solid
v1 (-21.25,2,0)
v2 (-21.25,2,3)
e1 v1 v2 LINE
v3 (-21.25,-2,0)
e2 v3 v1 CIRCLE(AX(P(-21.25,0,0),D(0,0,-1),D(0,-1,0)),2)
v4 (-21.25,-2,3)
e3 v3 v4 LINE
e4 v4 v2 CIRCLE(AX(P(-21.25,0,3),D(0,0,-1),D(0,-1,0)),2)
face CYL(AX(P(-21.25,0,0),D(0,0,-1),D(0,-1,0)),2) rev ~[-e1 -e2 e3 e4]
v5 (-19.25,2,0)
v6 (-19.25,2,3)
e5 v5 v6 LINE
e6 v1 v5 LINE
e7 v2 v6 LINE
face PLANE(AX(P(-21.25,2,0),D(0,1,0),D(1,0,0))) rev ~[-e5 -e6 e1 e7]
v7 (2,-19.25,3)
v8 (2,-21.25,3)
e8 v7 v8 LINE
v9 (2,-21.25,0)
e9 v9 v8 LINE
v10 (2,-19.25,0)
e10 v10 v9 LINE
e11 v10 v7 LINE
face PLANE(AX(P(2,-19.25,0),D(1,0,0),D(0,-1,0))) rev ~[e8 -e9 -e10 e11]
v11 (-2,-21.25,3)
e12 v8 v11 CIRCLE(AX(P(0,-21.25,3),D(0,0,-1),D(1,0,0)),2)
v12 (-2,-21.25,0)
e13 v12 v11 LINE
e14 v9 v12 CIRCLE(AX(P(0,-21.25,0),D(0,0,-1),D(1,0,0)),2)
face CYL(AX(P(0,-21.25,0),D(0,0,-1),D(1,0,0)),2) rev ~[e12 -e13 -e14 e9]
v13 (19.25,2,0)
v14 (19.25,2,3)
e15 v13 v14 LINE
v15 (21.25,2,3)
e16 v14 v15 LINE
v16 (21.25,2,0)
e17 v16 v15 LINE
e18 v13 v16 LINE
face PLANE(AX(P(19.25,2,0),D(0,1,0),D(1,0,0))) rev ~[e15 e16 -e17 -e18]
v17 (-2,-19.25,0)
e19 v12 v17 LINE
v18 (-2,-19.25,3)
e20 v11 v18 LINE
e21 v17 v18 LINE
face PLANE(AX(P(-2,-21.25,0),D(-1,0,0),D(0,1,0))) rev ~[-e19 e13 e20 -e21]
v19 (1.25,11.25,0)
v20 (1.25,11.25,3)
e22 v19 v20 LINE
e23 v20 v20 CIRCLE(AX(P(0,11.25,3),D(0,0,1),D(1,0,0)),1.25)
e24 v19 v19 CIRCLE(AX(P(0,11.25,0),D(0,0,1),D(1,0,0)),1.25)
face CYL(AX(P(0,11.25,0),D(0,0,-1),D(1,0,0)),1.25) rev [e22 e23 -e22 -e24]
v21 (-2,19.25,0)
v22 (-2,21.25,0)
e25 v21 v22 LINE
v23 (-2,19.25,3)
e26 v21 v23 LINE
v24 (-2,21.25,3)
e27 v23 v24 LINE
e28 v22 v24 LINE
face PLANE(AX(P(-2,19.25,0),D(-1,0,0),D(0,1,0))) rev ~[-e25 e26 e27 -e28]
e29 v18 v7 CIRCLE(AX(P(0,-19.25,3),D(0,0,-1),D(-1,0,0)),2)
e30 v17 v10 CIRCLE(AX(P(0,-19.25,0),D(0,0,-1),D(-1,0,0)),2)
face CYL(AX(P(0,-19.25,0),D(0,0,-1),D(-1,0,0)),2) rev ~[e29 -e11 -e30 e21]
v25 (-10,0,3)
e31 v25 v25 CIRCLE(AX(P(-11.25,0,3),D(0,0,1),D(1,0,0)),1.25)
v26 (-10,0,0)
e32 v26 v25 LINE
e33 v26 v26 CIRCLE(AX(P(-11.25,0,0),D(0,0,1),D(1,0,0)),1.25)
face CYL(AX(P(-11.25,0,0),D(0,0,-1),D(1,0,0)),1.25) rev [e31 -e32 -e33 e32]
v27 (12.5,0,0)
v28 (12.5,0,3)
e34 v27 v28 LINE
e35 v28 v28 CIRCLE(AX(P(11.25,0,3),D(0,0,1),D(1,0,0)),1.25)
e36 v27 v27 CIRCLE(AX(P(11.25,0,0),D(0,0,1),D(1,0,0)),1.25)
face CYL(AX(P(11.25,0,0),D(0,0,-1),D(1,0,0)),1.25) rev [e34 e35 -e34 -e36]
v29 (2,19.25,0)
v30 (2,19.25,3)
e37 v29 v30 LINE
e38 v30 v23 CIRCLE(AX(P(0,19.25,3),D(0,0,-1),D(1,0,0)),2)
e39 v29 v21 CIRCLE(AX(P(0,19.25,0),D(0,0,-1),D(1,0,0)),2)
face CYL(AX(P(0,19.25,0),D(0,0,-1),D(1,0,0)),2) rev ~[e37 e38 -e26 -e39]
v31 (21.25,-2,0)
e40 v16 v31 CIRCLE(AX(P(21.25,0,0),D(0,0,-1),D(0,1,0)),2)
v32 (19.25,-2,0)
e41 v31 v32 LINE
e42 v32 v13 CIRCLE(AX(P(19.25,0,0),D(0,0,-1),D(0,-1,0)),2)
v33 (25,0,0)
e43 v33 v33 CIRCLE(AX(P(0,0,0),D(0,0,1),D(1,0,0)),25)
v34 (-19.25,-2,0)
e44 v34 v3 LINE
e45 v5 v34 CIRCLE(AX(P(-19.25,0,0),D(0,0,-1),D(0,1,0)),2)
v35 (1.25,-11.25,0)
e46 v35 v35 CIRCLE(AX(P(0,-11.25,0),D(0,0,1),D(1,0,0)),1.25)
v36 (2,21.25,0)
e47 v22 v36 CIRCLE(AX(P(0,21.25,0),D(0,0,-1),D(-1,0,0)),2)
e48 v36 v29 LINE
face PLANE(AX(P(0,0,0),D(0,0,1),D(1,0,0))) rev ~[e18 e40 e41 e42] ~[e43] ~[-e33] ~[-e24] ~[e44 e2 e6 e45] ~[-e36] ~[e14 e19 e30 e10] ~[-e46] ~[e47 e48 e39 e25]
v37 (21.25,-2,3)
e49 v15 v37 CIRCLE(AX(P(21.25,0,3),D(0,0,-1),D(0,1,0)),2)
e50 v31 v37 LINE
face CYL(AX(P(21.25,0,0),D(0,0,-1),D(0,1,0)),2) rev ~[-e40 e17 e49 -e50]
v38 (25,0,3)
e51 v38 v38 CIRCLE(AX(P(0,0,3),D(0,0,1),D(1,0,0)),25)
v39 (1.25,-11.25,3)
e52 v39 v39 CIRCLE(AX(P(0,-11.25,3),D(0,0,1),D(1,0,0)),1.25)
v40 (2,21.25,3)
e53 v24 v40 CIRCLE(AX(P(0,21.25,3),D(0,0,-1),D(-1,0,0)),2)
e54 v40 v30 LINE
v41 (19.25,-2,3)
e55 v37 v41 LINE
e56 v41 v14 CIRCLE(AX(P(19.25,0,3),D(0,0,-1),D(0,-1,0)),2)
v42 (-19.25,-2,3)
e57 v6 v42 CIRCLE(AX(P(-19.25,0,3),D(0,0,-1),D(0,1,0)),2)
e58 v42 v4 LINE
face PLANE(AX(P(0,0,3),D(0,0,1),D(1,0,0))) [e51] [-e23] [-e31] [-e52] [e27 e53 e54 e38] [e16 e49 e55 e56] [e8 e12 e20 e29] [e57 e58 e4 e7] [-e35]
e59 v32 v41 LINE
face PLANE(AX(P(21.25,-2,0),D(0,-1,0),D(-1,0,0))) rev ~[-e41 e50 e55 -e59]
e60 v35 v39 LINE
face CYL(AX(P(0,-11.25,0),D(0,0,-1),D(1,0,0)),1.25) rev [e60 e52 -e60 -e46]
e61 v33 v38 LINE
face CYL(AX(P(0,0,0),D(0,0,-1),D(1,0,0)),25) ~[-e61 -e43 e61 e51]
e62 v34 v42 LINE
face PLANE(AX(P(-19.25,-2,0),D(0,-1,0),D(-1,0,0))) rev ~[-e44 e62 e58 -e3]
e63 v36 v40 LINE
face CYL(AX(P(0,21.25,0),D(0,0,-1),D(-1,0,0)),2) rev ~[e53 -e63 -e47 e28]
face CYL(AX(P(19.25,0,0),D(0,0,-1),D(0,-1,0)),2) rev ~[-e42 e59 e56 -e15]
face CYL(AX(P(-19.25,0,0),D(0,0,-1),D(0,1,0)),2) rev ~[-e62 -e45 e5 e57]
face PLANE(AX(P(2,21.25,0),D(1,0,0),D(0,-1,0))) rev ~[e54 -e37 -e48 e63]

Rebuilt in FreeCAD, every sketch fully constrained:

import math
import FreeCAD as App
import Part
import Sketcher

doc = App.newDocument("Part")
body = doc.addObject("PartDesign::Body", "Body")

sketch1 = doc.addObject("Sketcher::SketchObject", "Sketch")
body.addObject(sketch1)
sketch1.AttachmentSupport = (doc.XY_Plane, [""])
sketch1.MapMode = "FlatFace"
sketch1.addGeometry([
    Part.Circle(App.Vector(0, 0, 0), App.Vector(0, 0, 1), 25),
    Part.ArcOfCircle(Part.Circle(App.Vector(0, -21.2, 0), App.Vector(0, 0, 1), 2), math.radians(180), math.radians(360)),
    Part.LineSegment(App.Vector(-2, -21.2, 0), App.Vector(-2, -19.2, 0)),
    Part.ArcOfCircle(Part.Circle(App.Vector(0, -19.2, 0), App.Vector(0, 0, 1), 2), math.radians(0), math.radians(180)),
    Part.LineSegment(App.Vector(2, -19.2, 0), App.Vector(2, -21.2, 0)),
    Part.Circle(App.Vector(0, -11.2, 0), App.Vector(0, 0, 1), 1.2),
    Part.ArcOfCircle(Part.Circle(App.Vector(-19.2, 0, 0), App.Vector(0, 0, 1), 2), math.radians(-90), math.radians(90)),
    Part.LineSegment(App.Vector(-19.2, -2, 0), App.Vector(-21.2, -2, 0)),
    Part.ArcOfCircle(Part.Circle(App.Vector(-21.2, 0, 0), App.Vector(0, 0, 1), 2), math.radians(90), math.radians(270)),
    Part.LineSegment(App.Vector(-21.2, 2, 0), App.Vector(-19.2, 2, 0)),
    Part.Circle(App.Vector(-11.2, 0, 0), App.Vector(0, 0, 1), 1.2),
    Part.Circle(App.Vector(11.2, 0, 0), App.Vector(0, 0, 1), 1.2),
    Part.Circle(App.Vector(0, 11.2, 0), App.Vector(0, 0, 1), 1.2),
    Part.LineSegment(App.Vector(19.2, 2, 0), App.Vector(21.2, 2, 0)),
    Part.ArcOfCircle(Part.Circle(App.Vector(21.2, 0, 0), App.Vector(0, 0, 1), 2), math.radians(-90), math.radians(90)),
    Part.LineSegment(App.Vector(21.2, -2, 0), App.Vector(19.2, -2, 0)),
    Part.ArcOfCircle(Part.Circle(App.Vector(19.2, 0, 0), App.Vector(0, 0, 1), 2), math.radians(90), math.radians(270)),
    Part.ArcOfCircle(Part.Circle(App.Vector(0, 21.2, 0), App.Vector(0, 0, 1), 2), math.radians(0), math.radians(180)),
    Part.LineSegment(App.Vector(2, 21.2, 0), App.Vector(2, 19.2, 0)),
    Part.ArcOfCircle(Part.Circle(App.Vector(0, 19.2, 0), App.Vector(0, 0, 1), 2), math.radians(180), math.radians(360)),
    Part.LineSegment(App.Vector(-2, 19.2, 0), App.Vector(-2, 21.2, 0)),
], False)
sketch1.addConstraint([
    Sketcher.Constraint("Tangent", 1, 1, 2, 1),
    Sketcher.Constraint("Tangent", 2, 2, 3, 2),
    Sketcher.Constraint("Tangent", 3, 1, 4, 1),
    Sketcher.Constraint("Tangent", 4, 2, 1, 2),
    Sketcher.Constraint("Tangent", 6, 1, 7, 1),
    Sketcher.Constraint("Tangent", 7, 2, 8, 2),
    Sketcher.Constraint("Tangent", 8, 1, 9, 1),
    Sketcher.Constraint("Tangent", 9, 2, 6, 2),
    Sketcher.Constraint("Tangent", 13, 2, 14, 2),
    Sketcher.Constraint("Tangent", 14, 1, 15, 1),
    Sketcher.Constraint("Tangent", 15, 2, 16, 2),
    Sketcher.Constraint("Tangent", 16, 1, 13, 1),
    Sketcher.Constraint("Tangent", 17, 1, 18, 1),
    Sketcher.Constraint("Tangent", 18, 2, 19, 2),
    Sketcher.Constraint("Tangent", 19, 1, 20, 1),
    Sketcher.Constraint("Tangent", 20, 2, 17, 2),
    Sketcher.Constraint("Vertical", 2),
    Sketcher.Constraint("Vertical", 4),
    Sketcher.Constraint("Horizontal", 7),
    Sketcher.Constraint("Horizontal", 9),
    Sketcher.Constraint("Horizontal", 13),
    Sketcher.Constraint("Horizontal", 15),
    Sketcher.Constraint("Vertical", 18),
    Sketcher.Constraint("Vertical", 20),
    Sketcher.Constraint("Coincident", 0, 3, -1, 1),
    Sketcher.Constraint("Equal", 3, 6),
    Sketcher.Constraint("Equal", 5, 10),
    Sketcher.Constraint("Equal", 10, 11),
    Sketcher.Constraint("Equal", 11, 12),
    Sketcher.Constraint("Equal", 8, 14),
    Sketcher.Constraint("Equal", 16, 17),
    Sketcher.Constraint("Symmetric", 10, 3, 11, 3, -1, 1),
    Sketcher.Constraint("Symmetric", 5, 3, 12, 3, -1, 1),
    Sketcher.Constraint("Symmetric", 8, 3, 14, 3, -1, 1),
    Sketcher.Constraint("Symmetric", 1, 3, 17, 3, -1, 1),
    Sketcher.Constraint("Symmetric", 6, 3, 16, 3, -2),
    Sketcher.Constraint("Symmetric", 3, 3, 19, 3, -1),
    Sketcher.Constraint("PointOnObject", 5, 3, -2),
    Sketcher.Constraint("PointOnObject", 10, 3, -1),
    Sketcher.Constraint("Equal", 15, 2),
    Sketcher.Constraint("Diameter", 0, 50.0),
    Sketcher.Constraint("Radius", 1, 2.0),
    Sketcher.Constraint("Diameter", 5, 2.5),
    Sketcher.Constraint("DistanceX", 7, 2, 7, 1, 2.0),
    Sketcher.Constraint("DistanceY", 3, 3, 5, 3, 8.0),
    Sketcher.Constraint("DistanceX", 6, 3, 10, 3, 8.0),
    Sketcher.Constraint("DistanceX", 10, 3, 11, 3, 22.5),
    Sketcher.Constraint("DistanceY", 5, 3, 12, 3, 22.5),
])
pad1 = doc.addObject("PartDesign::Pad", "Pad")
body.addObject(pad1)
pad1.Profile = sketch1
pad1.Length = 3

doc.recompute()
